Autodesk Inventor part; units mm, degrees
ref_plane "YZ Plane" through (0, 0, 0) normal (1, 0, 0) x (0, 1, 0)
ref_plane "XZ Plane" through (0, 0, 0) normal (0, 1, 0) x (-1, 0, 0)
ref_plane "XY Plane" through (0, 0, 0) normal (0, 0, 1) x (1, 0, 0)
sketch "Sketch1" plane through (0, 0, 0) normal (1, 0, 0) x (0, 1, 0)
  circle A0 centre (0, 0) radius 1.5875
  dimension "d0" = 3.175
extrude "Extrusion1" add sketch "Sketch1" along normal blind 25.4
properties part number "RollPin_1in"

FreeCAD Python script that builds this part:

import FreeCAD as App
import Part
import Sketcher
Q = App.Units.Quantity

doc = App.newDocument("Part")
params = doc.addObject("Spreadsheet::Sheet", "Params")
for row, (alias, value) in enumerate([
    ("sketch1_diameter", "0.125 in"),
    ("pad1_length", "1 in"),
], start=1):
    params.set(f"A{row}", alias)
    params.set(f"B{row}", "=" + value)
    params.setAlias(f"B{row}", alias)

body = doc.addObject("PartDesign::Body", "Body")

# Sketch on YZ plane
sketch1 = body.newObject("Sketcher::SketchObject", "Sketch")
sketch1.AttachmentSupport = (doc.getObject("YZ_Plane"), [""])
sketch1.MapMode = "FlatFace"
sketch1.addGeometry(Part.Circle(App.Vector(0, 0, 0), App.Vector(0, 0, 1), 1.5875), False)
sketch1.addConstraint([
    Sketcher.Constraint("Coincident", 0, 3, -1, 1),
    Sketcher.Constraint("Diameter", 0, Q("0.125 in")),
])
sketch1.setExpression("Constraints[1]", "Params.sketch1_diameter")
pad1 = body.newObject("PartDesign::Pad", "Pad")
pad1.Profile = sketch1
pad1.setExpression("Length", "Params.pad1_length")

doc.recompute()
